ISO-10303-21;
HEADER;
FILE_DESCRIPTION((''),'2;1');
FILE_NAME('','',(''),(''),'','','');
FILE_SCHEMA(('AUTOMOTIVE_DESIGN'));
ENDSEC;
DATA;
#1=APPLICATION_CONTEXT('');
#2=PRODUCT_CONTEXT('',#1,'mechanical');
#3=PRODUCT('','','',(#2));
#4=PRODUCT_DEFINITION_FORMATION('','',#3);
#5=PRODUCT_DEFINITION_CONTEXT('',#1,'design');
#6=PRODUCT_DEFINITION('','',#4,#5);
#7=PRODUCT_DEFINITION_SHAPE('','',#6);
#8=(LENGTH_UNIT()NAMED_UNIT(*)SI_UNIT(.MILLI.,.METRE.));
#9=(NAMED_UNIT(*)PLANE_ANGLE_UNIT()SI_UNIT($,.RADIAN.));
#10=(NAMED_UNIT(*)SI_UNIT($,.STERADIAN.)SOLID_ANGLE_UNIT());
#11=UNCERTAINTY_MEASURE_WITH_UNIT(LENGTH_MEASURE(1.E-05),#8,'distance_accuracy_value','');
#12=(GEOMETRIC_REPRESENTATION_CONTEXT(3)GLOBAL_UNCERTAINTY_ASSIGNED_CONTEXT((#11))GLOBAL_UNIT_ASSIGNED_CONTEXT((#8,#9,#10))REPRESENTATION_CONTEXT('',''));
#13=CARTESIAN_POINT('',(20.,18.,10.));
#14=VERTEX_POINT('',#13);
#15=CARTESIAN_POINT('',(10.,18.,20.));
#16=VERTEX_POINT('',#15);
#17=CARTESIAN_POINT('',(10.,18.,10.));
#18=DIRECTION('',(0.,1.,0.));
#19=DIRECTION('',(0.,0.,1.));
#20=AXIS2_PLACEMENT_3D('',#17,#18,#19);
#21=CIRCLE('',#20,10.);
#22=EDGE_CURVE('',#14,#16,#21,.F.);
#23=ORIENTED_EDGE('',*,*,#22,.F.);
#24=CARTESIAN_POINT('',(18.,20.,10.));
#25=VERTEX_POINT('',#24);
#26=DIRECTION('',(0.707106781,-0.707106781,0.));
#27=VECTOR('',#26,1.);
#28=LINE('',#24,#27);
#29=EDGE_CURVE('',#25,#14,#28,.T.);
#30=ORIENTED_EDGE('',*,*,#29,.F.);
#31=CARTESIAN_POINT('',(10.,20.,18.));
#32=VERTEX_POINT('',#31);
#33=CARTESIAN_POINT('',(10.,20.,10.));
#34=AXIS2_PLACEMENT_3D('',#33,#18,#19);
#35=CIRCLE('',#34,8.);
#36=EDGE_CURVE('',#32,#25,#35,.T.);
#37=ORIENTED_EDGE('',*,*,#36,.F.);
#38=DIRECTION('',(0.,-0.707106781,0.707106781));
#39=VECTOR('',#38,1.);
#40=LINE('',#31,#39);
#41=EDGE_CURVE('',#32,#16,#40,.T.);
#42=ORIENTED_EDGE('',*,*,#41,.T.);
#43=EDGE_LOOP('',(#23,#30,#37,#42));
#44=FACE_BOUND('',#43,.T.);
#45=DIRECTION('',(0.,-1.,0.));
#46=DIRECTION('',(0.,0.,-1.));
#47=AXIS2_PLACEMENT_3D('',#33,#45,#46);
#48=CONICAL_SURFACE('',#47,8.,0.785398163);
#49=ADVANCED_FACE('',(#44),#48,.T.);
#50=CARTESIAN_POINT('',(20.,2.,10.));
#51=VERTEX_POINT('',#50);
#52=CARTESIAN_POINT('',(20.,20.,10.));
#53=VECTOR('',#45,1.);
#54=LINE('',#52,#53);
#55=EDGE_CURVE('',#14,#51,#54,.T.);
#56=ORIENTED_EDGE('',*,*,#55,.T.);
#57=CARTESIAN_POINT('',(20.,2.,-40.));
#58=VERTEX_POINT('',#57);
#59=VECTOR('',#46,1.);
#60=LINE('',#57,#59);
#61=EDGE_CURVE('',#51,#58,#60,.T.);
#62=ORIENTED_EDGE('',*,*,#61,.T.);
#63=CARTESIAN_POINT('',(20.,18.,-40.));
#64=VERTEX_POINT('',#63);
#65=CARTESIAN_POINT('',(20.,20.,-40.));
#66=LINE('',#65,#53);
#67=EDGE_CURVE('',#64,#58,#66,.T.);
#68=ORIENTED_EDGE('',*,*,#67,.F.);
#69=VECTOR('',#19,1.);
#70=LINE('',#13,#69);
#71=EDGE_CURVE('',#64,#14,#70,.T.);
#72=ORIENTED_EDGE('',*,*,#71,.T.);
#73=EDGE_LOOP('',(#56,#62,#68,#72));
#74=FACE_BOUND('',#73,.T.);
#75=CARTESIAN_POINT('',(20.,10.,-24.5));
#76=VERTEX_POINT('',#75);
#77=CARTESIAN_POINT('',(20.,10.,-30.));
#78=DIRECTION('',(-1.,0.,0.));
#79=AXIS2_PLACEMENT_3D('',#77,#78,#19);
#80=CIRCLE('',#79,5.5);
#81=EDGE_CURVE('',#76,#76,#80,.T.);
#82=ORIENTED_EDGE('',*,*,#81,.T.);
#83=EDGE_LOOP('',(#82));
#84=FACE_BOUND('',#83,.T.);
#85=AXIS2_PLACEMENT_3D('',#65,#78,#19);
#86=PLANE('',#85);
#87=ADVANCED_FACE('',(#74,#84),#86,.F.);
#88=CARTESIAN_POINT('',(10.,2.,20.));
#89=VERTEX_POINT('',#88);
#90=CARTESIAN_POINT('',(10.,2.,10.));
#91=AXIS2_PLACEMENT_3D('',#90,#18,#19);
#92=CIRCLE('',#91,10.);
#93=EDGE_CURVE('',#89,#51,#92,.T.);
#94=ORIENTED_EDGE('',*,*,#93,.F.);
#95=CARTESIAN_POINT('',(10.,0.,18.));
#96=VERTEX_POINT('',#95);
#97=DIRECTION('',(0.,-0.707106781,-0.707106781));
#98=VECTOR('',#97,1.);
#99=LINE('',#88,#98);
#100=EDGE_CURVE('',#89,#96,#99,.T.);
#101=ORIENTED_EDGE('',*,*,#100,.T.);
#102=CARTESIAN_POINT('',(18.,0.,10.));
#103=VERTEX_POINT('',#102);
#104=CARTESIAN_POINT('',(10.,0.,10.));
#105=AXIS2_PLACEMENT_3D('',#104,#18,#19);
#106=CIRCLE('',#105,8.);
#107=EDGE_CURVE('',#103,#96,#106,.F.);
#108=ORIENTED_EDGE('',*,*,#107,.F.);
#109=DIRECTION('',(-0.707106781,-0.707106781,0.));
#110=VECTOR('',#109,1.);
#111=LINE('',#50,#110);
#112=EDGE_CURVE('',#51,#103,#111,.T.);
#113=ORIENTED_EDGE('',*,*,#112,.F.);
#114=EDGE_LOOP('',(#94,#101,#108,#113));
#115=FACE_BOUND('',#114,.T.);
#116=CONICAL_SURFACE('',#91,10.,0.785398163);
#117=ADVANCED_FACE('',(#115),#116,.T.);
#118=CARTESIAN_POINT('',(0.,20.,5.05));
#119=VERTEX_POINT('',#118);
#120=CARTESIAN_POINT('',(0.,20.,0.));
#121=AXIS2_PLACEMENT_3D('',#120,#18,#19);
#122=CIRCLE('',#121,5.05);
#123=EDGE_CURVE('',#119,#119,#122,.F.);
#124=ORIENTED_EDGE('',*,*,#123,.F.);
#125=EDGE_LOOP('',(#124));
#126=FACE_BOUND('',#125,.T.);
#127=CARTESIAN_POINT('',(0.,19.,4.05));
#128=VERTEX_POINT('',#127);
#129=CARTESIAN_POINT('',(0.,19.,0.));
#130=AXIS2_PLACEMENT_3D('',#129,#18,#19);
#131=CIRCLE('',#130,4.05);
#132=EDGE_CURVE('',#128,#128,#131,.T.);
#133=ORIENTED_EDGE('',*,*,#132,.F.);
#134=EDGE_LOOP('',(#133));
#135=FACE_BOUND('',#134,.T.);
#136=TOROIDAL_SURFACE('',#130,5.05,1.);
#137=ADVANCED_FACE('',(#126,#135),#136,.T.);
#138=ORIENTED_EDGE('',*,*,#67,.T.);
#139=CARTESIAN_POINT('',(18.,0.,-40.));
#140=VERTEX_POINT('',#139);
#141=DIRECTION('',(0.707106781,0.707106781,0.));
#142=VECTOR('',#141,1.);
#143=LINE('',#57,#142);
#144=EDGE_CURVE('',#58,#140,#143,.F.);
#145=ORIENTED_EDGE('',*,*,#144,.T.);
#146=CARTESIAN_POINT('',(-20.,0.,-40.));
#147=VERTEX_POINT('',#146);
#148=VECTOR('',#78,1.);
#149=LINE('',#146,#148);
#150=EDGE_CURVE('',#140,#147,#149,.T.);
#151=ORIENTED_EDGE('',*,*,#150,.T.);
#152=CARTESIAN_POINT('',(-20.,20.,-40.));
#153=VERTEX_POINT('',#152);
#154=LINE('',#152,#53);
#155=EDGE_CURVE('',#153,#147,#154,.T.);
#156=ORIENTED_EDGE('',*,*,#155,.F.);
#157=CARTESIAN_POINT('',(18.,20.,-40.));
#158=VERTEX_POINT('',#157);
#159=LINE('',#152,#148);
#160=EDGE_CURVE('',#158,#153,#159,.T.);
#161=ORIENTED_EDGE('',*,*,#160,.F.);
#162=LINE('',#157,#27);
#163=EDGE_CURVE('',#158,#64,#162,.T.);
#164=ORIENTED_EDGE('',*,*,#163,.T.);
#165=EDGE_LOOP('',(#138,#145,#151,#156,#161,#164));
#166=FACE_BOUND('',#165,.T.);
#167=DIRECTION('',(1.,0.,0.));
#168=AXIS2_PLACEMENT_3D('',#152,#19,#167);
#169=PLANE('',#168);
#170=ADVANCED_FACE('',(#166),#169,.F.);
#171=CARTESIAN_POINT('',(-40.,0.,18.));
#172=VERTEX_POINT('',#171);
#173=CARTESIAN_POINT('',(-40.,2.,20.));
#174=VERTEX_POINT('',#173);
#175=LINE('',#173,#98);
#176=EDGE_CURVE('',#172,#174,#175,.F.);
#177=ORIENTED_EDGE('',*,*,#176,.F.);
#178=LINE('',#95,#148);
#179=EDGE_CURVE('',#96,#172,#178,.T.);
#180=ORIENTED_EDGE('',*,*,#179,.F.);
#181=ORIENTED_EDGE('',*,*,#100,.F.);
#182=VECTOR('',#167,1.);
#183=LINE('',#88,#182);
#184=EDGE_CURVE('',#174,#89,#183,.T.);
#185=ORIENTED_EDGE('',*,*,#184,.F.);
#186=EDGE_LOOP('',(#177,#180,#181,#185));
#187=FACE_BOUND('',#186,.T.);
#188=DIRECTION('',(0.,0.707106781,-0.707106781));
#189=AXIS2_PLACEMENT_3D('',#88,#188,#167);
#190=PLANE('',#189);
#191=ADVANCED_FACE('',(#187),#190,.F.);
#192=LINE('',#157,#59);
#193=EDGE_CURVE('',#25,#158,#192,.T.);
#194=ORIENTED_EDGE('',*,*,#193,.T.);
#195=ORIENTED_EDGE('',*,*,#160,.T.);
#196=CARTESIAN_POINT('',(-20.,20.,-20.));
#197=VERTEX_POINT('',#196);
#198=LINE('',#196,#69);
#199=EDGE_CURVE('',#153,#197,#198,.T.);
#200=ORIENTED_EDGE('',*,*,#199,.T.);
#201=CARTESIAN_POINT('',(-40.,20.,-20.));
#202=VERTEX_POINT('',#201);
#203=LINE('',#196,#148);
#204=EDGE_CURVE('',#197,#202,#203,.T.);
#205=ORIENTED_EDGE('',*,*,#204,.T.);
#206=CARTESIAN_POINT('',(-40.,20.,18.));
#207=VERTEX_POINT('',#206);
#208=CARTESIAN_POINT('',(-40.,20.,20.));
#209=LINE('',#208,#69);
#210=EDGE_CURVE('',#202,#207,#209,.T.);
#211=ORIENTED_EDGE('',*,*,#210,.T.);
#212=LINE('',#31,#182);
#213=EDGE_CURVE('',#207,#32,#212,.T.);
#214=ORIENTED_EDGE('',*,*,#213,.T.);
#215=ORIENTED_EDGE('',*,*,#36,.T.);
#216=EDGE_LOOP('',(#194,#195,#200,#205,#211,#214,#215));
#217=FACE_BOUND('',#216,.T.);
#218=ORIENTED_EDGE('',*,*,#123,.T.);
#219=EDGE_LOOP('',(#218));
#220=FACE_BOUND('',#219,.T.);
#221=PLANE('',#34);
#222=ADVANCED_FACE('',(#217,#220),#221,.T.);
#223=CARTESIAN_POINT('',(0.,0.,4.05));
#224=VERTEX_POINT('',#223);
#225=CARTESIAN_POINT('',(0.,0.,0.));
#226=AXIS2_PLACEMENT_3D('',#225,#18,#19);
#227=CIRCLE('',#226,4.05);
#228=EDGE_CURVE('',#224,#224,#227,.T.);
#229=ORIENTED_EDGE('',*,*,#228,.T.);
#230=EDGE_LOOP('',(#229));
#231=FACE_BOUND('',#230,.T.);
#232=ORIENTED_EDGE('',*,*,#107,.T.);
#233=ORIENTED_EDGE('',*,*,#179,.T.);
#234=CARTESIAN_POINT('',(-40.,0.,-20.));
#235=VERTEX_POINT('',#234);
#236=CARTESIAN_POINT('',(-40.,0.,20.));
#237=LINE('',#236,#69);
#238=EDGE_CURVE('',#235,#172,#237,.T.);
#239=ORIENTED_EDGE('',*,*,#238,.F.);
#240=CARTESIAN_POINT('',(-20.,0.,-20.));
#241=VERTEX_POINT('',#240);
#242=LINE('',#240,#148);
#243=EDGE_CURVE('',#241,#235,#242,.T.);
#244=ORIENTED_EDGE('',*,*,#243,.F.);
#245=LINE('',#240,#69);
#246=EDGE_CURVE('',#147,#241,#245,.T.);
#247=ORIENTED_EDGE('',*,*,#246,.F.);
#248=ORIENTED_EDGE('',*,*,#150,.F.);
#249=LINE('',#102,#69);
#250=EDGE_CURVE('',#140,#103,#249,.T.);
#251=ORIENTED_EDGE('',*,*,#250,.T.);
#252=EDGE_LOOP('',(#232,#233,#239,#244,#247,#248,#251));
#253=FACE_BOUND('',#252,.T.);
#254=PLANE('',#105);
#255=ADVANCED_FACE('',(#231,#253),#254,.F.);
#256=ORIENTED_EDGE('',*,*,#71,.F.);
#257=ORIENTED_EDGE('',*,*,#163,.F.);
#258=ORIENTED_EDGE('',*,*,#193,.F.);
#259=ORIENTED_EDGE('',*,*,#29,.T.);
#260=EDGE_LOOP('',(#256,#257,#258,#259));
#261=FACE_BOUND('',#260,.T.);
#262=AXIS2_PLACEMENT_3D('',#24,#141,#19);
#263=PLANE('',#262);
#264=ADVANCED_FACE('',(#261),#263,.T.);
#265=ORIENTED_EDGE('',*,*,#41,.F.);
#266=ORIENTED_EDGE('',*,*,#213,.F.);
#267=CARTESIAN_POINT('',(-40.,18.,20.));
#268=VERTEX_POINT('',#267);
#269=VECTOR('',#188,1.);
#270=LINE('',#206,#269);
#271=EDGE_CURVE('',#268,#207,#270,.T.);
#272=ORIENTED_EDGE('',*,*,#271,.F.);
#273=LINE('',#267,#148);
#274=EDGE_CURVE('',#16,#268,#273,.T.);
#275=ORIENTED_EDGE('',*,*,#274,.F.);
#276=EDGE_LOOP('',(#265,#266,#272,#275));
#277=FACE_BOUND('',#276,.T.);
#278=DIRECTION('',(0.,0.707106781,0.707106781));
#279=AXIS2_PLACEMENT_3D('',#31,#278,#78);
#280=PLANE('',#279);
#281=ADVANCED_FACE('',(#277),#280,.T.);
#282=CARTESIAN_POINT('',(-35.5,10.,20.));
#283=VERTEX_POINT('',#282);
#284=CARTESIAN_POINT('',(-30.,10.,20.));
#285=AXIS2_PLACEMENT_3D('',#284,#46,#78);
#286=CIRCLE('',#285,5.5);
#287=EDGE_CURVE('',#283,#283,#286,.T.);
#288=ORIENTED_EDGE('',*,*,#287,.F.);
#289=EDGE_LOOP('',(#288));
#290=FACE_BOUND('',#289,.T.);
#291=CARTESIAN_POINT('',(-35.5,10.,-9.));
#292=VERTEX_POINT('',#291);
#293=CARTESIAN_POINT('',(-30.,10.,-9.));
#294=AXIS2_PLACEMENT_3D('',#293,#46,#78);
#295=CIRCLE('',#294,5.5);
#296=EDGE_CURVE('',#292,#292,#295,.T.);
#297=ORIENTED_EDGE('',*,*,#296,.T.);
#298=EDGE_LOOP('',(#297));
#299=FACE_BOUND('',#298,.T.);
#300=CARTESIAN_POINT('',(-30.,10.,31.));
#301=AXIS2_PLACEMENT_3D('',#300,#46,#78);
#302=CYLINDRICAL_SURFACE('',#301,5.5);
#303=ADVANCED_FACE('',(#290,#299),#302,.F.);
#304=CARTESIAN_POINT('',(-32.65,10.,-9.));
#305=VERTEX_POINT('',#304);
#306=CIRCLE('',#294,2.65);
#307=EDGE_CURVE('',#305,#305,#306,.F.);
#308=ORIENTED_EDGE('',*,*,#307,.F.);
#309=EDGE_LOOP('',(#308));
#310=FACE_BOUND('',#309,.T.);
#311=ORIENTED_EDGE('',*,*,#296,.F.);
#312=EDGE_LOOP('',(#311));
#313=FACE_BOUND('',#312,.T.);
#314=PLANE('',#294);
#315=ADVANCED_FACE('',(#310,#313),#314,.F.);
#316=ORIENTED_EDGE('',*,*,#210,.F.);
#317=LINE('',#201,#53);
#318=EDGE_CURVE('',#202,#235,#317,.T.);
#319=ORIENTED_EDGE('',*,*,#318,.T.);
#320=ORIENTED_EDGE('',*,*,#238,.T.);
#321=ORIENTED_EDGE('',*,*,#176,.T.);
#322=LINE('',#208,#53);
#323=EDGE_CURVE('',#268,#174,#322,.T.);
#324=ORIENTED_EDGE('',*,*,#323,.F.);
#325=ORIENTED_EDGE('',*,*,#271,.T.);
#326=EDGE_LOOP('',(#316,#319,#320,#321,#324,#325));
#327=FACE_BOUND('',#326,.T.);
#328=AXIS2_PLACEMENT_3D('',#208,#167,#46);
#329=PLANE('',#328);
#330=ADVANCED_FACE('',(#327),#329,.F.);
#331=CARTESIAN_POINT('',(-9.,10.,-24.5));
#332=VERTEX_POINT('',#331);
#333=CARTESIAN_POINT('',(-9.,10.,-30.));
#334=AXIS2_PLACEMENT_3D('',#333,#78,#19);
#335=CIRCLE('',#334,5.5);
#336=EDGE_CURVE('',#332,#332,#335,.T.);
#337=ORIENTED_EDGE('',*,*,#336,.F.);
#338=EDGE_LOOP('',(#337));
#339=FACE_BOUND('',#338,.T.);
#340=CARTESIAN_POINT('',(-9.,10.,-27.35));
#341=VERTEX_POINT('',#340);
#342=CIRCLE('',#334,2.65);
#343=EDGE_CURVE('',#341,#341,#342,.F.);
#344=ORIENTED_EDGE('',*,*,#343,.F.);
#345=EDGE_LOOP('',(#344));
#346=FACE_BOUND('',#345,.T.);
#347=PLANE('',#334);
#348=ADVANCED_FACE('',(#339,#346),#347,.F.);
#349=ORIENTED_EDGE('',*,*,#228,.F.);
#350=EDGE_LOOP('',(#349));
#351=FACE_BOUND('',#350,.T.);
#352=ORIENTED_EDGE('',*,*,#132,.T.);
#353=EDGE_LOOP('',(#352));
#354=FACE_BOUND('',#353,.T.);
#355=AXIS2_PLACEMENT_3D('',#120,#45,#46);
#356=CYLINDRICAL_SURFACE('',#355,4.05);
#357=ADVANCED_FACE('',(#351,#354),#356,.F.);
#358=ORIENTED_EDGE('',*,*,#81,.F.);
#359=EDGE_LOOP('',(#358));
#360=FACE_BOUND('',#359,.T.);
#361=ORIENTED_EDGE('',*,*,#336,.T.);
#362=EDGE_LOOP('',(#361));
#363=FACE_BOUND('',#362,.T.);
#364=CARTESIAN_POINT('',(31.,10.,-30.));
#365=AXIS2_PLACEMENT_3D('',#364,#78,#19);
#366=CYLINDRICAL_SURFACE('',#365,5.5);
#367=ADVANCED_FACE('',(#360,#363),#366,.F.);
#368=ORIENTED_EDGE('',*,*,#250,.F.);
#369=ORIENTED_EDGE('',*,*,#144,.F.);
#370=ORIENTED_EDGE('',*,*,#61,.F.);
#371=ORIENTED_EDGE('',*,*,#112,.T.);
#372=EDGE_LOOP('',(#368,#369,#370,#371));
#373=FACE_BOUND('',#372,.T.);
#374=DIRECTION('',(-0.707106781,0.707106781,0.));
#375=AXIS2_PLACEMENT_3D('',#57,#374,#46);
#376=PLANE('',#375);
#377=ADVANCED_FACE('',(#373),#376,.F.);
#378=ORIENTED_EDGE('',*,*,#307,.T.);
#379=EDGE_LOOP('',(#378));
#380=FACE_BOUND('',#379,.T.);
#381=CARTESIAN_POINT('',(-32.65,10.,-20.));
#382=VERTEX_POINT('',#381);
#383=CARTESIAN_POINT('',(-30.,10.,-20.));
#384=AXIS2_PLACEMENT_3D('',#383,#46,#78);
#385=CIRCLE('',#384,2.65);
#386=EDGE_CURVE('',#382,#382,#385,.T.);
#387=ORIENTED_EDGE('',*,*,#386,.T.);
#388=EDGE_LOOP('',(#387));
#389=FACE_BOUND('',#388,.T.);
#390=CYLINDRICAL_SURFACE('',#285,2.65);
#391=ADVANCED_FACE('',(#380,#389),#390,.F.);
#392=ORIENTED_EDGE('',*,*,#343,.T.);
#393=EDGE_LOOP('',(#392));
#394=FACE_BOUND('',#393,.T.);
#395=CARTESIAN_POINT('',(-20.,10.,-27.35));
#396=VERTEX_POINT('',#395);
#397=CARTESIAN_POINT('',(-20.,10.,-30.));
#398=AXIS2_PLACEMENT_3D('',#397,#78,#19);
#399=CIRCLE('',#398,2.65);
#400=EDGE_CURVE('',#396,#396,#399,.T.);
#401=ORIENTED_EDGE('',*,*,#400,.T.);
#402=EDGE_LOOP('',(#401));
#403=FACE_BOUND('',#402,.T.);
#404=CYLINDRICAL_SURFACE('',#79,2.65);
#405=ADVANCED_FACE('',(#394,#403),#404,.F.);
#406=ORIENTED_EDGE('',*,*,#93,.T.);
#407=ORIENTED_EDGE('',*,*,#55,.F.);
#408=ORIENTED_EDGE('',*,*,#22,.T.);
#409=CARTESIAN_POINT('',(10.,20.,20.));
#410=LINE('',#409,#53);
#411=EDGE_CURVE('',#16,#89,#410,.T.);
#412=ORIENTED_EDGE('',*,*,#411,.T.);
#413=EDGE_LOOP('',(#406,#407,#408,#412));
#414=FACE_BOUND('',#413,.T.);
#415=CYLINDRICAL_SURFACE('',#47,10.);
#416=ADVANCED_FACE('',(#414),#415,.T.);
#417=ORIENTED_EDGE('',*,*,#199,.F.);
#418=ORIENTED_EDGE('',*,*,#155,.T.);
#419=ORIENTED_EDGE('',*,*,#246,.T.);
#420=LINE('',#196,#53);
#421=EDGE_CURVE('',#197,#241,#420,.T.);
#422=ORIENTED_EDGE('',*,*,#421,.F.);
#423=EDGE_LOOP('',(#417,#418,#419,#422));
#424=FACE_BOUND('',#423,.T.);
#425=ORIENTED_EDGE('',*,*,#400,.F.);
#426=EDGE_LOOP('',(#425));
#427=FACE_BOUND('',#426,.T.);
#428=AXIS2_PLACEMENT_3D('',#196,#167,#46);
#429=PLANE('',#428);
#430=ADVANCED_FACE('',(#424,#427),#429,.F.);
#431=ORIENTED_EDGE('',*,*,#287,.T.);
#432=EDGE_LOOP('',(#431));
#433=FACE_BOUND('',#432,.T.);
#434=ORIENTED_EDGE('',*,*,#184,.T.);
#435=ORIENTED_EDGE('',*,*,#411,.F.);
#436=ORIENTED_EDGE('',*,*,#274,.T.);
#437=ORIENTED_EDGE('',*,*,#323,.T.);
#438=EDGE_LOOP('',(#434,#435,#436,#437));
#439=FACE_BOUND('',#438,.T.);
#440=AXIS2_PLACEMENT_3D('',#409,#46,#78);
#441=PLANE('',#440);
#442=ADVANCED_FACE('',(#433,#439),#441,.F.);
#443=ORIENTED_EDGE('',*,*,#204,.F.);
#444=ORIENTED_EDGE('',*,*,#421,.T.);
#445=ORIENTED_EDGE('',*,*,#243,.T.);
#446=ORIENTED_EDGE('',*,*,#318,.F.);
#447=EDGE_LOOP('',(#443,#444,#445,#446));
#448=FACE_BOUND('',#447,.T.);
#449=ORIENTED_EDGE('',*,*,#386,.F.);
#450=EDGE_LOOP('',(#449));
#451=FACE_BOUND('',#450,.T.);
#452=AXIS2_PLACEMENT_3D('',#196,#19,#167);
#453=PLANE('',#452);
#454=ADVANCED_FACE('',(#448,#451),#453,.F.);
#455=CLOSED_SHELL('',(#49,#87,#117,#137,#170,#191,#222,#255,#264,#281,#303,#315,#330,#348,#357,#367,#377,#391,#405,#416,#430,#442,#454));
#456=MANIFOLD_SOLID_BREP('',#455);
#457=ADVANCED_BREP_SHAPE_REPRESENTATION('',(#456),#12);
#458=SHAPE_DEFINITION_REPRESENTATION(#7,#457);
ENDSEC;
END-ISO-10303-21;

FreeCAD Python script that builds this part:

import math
import FreeCAD as App
import Part
import Sketcher

V = App.Vector
Q = App.Units.Quantity


def edges_at(feature, points):
    """Names of the edges that pass closest to the given points."""
    edges = feature.Shape.Edges
    near = lambda p: min(range(len(edges)), key=lambda i: edges[i].distToShape(Part.Vertex(*p))[0])
    return sorted({f"Edge{near(p) + 1}" for p in points})

doc = App.newDocument("Part")
body = doc.addObject("PartDesign::Body", "Body")

sketch1 = body.newObject("Sketcher::SketchObject", "Sketch")
sketch1.AttachmentSupport = (doc.getObject("XZ_Plane"), [""])
sketch1.MapMode = "FlatFace"
sketch1.addGeometry([
    Part.LineSegment(V(20, -40, 0), V(-20, -40, 0)),
    Part.LineSegment(V(-20, -40, 0), V(-20, -20, 0)),
    Part.LineSegment(V(-20, -20, 0), V(-40, -20, 0)),
    Part.LineSegment(V(-40, -20, 0), V(-40, 20, 0)),
    Part.LineSegment(V(-40, 20, 0), V(10, 20, 0)),
    Part.ArcOfCircle(Part.Circle(V(10, 10, 0), V(0, 0, 1), 10), math.radians(0), math.radians(90)),
    Part.LineSegment(V(20, 10, 0), V(20, -40, 0)),
    Part.Circle(V(0, 0, 0), V(0, 0, 1), 4.05),
], False)
sketch1.addConstraint([
    Sketcher.Constraint("Coincident", 0, 2, 1, 1),
    Sketcher.Constraint("Coincident", 1, 2, 2, 1),
    Sketcher.Constraint("Coincident", 2, 2, 3, 1),
    Sketcher.Constraint("Coincident", 3, 2, 4, 1),
    Sketcher.Constraint("Tangent", 4, 2, 5, 2),
    Sketcher.Constraint("Tangent", 5, 1, 6, 1),
    Sketcher.Constraint("Coincident", 6, 2, 0, 1),
    Sketcher.Constraint("Horizontal", 0),
    Sketcher.Constraint("Vertical", 1),
    Sketcher.Constraint("Horizontal", 2),
    Sketcher.Constraint("Vertical", 3),
    Sketcher.Constraint("Horizontal", 4),
    Sketcher.Constraint("Vertical", 6),
    Sketcher.Constraint("Coincident", 7, 3, -1, 1),
    Sketcher.Constraint("Equal", 2, 1),
    Sketcher.Constraint("Equal", 0, 3),
    Sketcher.Constraint("Radius", 5, Q("10 mm")),
    Sketcher.Constraint("Diameter", 7, Q("8.1 mm")),
    Sketcher.Constraint("DistanceX", 0, 2, 0, 1, Q("40 mm")),
    Sketcher.Constraint("DistanceX", 2, 2, 2, 1, Q("20 mm")),
    Sketcher.Constraint("DistanceX", -1, 1, 5, 3, Q("10 mm")),
    Sketcher.Constraint("DistanceY", -1, 1, 5, 3, Q("10 mm")),
])
pad1 = body.newObject("PartDesign::Pad", "Pad")
pad1.Profile = sketch1
pad1.Length = 20
pad1.Reversed = True
doc.recompute()

fillet = body.newObject("PartDesign::Fillet", "Fillet")
fillet.Base = (pad1, edges_at(pad1, [(0, 20, -4.05)]))
fillet.Radius = 1
doc.recompute()

chamfer = body.newObject("PartDesign::Chamfer", "Chamfer")
chamfer.Base = (fillet, edges_at(fillet, [
    (-15, 20, 20),
    (17.071, 20, 17.071),
    (20, 20, -15),
    (20, 0, -15),
    (17.071, 0, 17.071),
    (-15, 0, 20),
]))
chamfer.Size = 2

sketch2 = body.newObject("Sketcher::SketchObject", "Sketch001")
sketch2.AttachmentSupport = (doc.getObject("YZ_Plane"), [""])
sketch2.MapMode = "FlatFace"
sketch2.AttachmentOffset = App.Placement(V(0, 0, -20), App.Rotation())
sketch2.addGeometry(Part.Circle(V(10, -30, 0), V(0, 0, 1), 2.65), False)
sketch2.addConstraint([
    Sketcher.Constraint("Diameter", 0, Q("5.3 mm")),
    Sketcher.Constraint("DistanceX", -1, 1, 0, 3, Q("10 mm")),
    Sketcher.Constraint("DistanceY", 0, 3, -1, 1, Q("30 mm")),
])
pocket1 = body.newObject("PartDesign::Pocket", "Pocket")
pocket1.Profile = sketch2
pocket1.Length = 40
pocket1.Reversed = True

sketch3 = body.newObject("Sketcher::SketchObject", "Sketch002")
sketch3.AttachmentSupport = (doc.getObject("XY_Plane"), [""])
sketch3.MapMode = "FlatFace"
sketch3.AttachmentOffset = App.Placement(V(0, 0, -20), App.Rotation())
sketch3.addGeometry(Part.Circle(V(-30, 10, 0), V(0, 0, 1), 2.65), False)
sketch3.addConstraint([
    Sketcher.Constraint("Diameter", 0, Q("5.3 mm")),
    Sketcher.Constraint("DistanceX", 0, 3, -1, 1, Q("30 mm")),
    Sketcher.Constraint("DistanceY", -1, 1, 0, 3, Q("10 mm")),
])
pocket2 = body.newObject("PartDesign::Pocket", "Pocket001")
pocket2.Profile = sketch3
pocket2.Length = 40
pocket2.Reversed = True

sketch4 = body.newObject("Sketcher::SketchObject", "Sketch003")
sketch4.AttachmentSupport = (doc.getObject("YZ_Plane"), [""])
sketch4.MapMode = "FlatFace"
sketch4.AttachmentOffset = App.Placement(V(0, 0, -9), App.Rotation())
sketch4.addGeometry(Part.Circle(V(10, -30, 0), V(0, 0, 1), 5.5), False)
sketch4.addConstraint([
    Sketcher.Constraint("Diameter", 0, Q("11 mm")),
    Sketcher.Constraint("DistanceX", -1, 1, 0, 3, Q("10 mm")),
    Sketcher.Constraint("DistanceY", 0, 3, -1, 1, Q("30 mm")),
])
pocket3 = body.newObject("PartDesign::Pocket", "Pocket002")
pocket3.Profile = sketch4
pocket3.Length = 40
pocket3.Reversed = True

sketch5 = body.newObject("Sketcher::SketchObject", "Sketch004")
sketch5.AttachmentSupport = (doc.getObject("XY_Plane"), [""])
sketch5.MapMode = "FlatFace"
sketch5.AttachmentOffset = App.Placement(V(0, 0, -9), App.Rotation())
sketch5.addGeometry(Part.Circle(V(-30, 10, 0), V(0, 0, 1), 5.5), False)
sketch5.addConstraint([
    Sketcher.Constraint("Diameter", 0, Q("11 mm")),
    Sketcher.Constraint("DistanceX", 0, 3, -1, 1, Q("30 mm")),
    Sketcher.Constraint("DistanceY", -1, 1, 0, 3, Q("10 mm")),
])
pocket4 = body.newObject("PartDesign::Pocket", "Pocket003")
pocket4.Profile = sketch5
pocket4.Length = 40
pocket4.Reversed = True

doc.recompute()
